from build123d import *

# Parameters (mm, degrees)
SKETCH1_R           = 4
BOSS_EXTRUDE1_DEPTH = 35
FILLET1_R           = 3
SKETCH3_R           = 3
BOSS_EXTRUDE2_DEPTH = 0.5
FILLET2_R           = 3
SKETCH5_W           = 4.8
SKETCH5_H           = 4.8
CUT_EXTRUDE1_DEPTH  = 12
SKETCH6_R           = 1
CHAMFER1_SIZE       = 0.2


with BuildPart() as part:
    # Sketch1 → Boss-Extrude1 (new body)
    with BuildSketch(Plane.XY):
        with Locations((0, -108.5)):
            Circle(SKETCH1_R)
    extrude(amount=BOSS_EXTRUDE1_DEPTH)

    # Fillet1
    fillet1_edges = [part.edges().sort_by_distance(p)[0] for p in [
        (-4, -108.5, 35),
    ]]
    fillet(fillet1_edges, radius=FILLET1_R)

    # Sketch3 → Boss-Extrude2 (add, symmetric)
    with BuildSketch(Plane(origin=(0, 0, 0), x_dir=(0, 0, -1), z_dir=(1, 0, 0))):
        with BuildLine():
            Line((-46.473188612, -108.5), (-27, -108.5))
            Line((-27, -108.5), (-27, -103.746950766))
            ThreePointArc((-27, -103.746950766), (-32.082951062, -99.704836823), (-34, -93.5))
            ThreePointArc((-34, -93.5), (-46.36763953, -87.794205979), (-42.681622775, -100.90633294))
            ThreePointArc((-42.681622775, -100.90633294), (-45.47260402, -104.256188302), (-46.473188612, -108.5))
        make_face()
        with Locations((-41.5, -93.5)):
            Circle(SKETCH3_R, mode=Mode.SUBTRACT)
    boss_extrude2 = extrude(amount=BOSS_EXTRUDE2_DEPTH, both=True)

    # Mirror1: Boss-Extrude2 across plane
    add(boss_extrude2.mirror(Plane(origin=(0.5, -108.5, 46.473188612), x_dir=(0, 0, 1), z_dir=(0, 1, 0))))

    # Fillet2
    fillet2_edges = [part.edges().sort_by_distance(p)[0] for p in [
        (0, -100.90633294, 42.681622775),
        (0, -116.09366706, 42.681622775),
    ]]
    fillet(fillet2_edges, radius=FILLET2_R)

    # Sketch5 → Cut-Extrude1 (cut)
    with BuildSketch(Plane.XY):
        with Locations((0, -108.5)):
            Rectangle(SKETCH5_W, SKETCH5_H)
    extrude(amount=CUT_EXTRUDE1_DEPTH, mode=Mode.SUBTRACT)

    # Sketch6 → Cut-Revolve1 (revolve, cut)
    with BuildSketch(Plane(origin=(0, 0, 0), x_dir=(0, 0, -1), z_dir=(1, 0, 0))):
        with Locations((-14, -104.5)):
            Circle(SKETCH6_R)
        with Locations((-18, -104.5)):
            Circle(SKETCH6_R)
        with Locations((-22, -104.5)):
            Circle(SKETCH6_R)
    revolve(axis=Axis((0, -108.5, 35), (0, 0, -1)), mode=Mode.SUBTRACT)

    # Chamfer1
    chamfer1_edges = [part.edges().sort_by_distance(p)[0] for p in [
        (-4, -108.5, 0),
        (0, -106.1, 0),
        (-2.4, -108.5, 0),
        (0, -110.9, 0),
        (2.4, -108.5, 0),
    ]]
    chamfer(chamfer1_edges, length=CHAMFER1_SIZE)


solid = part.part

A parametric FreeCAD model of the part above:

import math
import FreeCAD as App
import Part
import Sketcher

V = App.Vector
Q = App.Units.Quantity


def edges_at(feature, points):
    """Names of the edges that pass closest to the given points."""
    edges = feature.Shape.Edges
    near = lambda p: min(range(len(edges)), key=lambda i: edges[i].distToShape(Part.Vertex(*p))[0])
    return sorted({f"Edge{near(p) + 1}" for p in points})

doc = App.newDocument("Part")
params = doc.addObject("Spreadsheet::Sheet", "Params")
for row, (alias, value) in enumerate([
    ("sketch1_diameter", "8 mm"),
    ("pad1_length", "35 mm"),
    ("fillet_radius", "3 mm"),
    ("sketch2_diameter", "6 mm"),
    ("sketch2_radius", "11 mm"),
    ("sketch2_radius2", "7.5 mm"),
    ("sketch2_radius3", "9.5 mm"),
    ("pad2_length", "1 mm"),
    ("fillet2_radius", "3 mm"),
    ("sketch3_width", "4.8 mm"),
    ("pocket1_length", "12 mm"),
    ("sketch4_diameter", "2 mm"),
    ("sketch4_height", "8 mm"),
    ("groove_angle", "360 deg"),
    ("chamfer_size", "0.2 mm"),
], start=1):
    params.set(f"A{row}", alias)
    params.set(f"B{row}", "=" + value)
    params.setAlias(f"B{row}", alias)

body = doc.addObject("PartDesign::Body", "Body")

sketch1 = body.newObject("Sketcher::SketchObject", "Sketch")
sketch1.AttachmentSupport = (doc.getObject("XY_Plane"), [""])
sketch1.MapMode = "FlatFace"
sketch1.addGeometry(Part.Circle(V(0, -108.5, 0), V(0, 0, 1), 4), False)
sketch1.addConstraint([
    Sketcher.Constraint("PointOnObject", 0, 3, -2),
    Sketcher.Constraint("Diameter", 0, Q("8 mm")),
    Sketcher.Constraint("DistanceY", 0, 3, -1, 1, Q("108.5 mm")),
])
sketch1.setExpression("Constraints[1]", "Params.sketch1_diameter")
pad1 = body.newObject("PartDesign::Pad", "Pad")
pad1.Profile = sketch1
pad1.setExpression("Length", "Params.pad1_length")
doc.recompute()

fillet = body.newObject("PartDesign::Fillet", "Fillet")
fillet.Base = (pad1, edges_at(pad1, [(-4, -108.5, 35)]))
fillet.setExpression("Radius", "Params.fillet_radius")

sketch2 = body.newObject("Sketcher::SketchObject", "Sketch001")
sketch2.AttachmentSupport = (doc.getObject("YZ_Plane"), [""])
sketch2.MapMode = "FlatFace"
sketch2.addGeometry([
    Part.LineSegment(V(-108.5, 46.5, 0), V(-108.5, 27, 0)),
    Part.LineSegment(V(-108.5, 27, 0), V(-103.7, 27, 0)),
    Part.ArcOfCircle(Part.Circle(V(-93.5, 23, 0), V(0, 0, 1), 11), math.radians(90), math.radians(159)),
    Part.ArcOfCircle(Part.Circle(V(-93.5, 41.5, 0), V(0, 0, 1), 7.5), math.radians(-90), math.radians(171)),
    Part.ArcOfCircle(Part.Circle(V(-108.5, 37, 0), V(0, 0, 1), 9.5), math.radians(37), math.radians(90)),
    Part.Circle(V(-93.5, 41.5, 0), V(0, 0, 1), 3),
], False)
sketch2.addConstraint([
    Sketcher.Constraint("Coincident", 0, 2, 1, 1),
    Sketcher.Constraint("Coincident", 1, 2, 2, 2),
    Sketcher.Constraint("Tangent", 2, 1, 3, 1),
    Sketcher.Constraint("Coincident", 3, 2, 4, 1),
    Sketcher.Constraint("Coincident", 4, 2, 0, 1),
    Sketcher.Constraint("Vertical", 0),
    Sketcher.Constraint("Horizontal", 1),
    Sketcher.Constraint("Coincident", 5, 3, 3, 3),
    Sketcher.Constraint("Vertical", 2, 3, 3, 3),
    Sketcher.Constraint("Vertical", 4, 3, 0, 2),
    Sketcher.Constraint("Diameter", 5, Q("6 mm")),
    Sketcher.Constraint("Radius", 2, Q("11 mm")),
    Sketcher.Constraint("Radius", 3, Q("7.5 mm")),
    Sketcher.Constraint("Radius", 4, Q("9.5 mm")),
    Sketcher.Constraint("DistanceY", -1, 1, 2, 3, Q("23 mm")),
    Sketcher.Constraint("DistanceY", -1, 1, 0, 2, Q("27 mm")),
    Sketcher.Constraint("DistanceX", 4, 3, 3, 3, Q("15 mm")),
    Sketcher.Constraint("DistanceX", 2, 3, -1, 1, Q("93.5 mm")),
    Sketcher.Constraint("DistanceY", 0, 2, 0, 1, Q("19.473189 mm")),
])
sketch2.setExpression("Constraints[10]", "Params.sketch2_diameter")
sketch2.setExpression("Constraints[11]", "Params.sketch2_radius")
sketch2.setExpression("Constraints[12]", "Params.sketch2_radius2")
sketch2.setExpression("Constraints[13]", "Params.sketch2_radius3")
pad2 = body.newObject("PartDesign::Pad", "Pad001")
pad2.Profile = sketch2
pad2.setExpression("Length", "Params.pad2_length")
pad2.Midplane = True
doc.recompute()

datumplane = body.newObject("PartDesign::Plane", "DatumPlane")
datumplane.AttachmentSupport = (doc.getObject("XZ_Plane"), [""])
datumplane.MapMode = "FlatFace"
datumplane.AttachmentOffset = App.Placement(V(0, 0, 108.5), App.Rotation())
mirrored = body.newObject("PartDesign::Mirrored", "Mirrored")
mirrored.Originals = [pad2]
mirrored.MirrorPlane = (datumplane, [""])
body.Tip = mirrored
doc.recompute()

fillet2 = body.newObject("PartDesign::Fillet", "Fillet001")
fillet2.Base = (mirrored, edges_at(mirrored, [(0, -100.906, 42.682), (0, -116.094, 42.682)]))
fillet2.setExpression("Radius", "Params.fillet2_radius")

sketch3 = body.newObject("Sketcher::SketchObject", "Sketch002")
sketch3.AttachmentSupport = (doc.getObject("XY_Plane"), [""])
sketch3.MapMode = "FlatFace"
sketch3.addGeometry([
    Part.LineSegment(V(-2.4, -106.1, 0), V(-2.4, -110.9, 0)),
    Part.LineSegment(V(-2.4, -110.9, 0), V(2.4, -110.9, 0)),
    Part.LineSegment(V(2.4, -110.9, 0), V(2.4, -106.1, 0)),
    Part.LineSegment(V(2.4, -106.1, 0), V(-2.4, -106.1, 0)),
], False)
sketch3.addConstraint([
    Sketcher.Constraint("Coincident", 0, 2, 1, 1),
    Sketcher.Constraint("Coincident", 1, 2, 2, 1),
    Sketcher.Constraint("Coincident", 2, 2, 3, 1),
    Sketcher.Constraint("Coincident", 3, 2, 0, 1),
    Sketcher.Constraint("Vertical", 0),
    Sketcher.Constraint("Horizontal", 1),
    Sketcher.Constraint("Vertical", 2),
    Sketcher.Constraint("Horizontal", 3),
    Sketcher.Constraint("Equal", 3, 0),
    Sketcher.Constraint("DistanceX", 1, 1, 1, 2, Q("4.8 mm")),
    Sketcher.Constraint("DistanceX", 0, 2, -1, 1, Q("2.4 mm")),
    Sketcher.Constraint("DistanceY", 0, 2, -1, 1, Q("110.9 mm")),
])
sketch3.setExpression("Constraints[9]", "Params.sketch3_width")
pocket1 = body.newObject("PartDesign::Pocket", "Pocket")
pocket1.Profile = sketch3
pocket1.setExpression("Length", "Params.pocket1_length")
pocket1.Reversed = True

sketch4 = body.newObject("Sketcher::SketchObject", "Sketch003")
sketch4.AttachmentSupport = (doc.getObject("YZ_Plane"), [""])
sketch4.MapMode = "FlatFace"
sketch4.addGeometry([
    Part.Circle(V(-104.5, 14, 0), V(0, 0, 1), 1),
    Part.Circle(V(-104.5, 18, 0), V(0, 0, 1), 1),
    Part.Circle(V(-104.5, 22, 0), V(0, 0, 1), 1),
], False)
sketch4.addGeometry(Part.LineSegment(V(-108.5, 22, 0), V(-108.5, 14, 0)), True)
sketch4.addConstraint([
    Sketcher.Constraint("Vertical", 3),
    Sketcher.Constraint("Equal", 0, 1),
    Sketcher.Constraint("Equal", 1, 2),
    Sketcher.Constraint("Horizontal", 2, 3, 3, 1),
    Sketcher.Constraint("Horizontal", 0, 3, 3, 2),
    Sketcher.Constraint("Vertical", 0, 3, 1, 3),
    Sketcher.Constraint("Vertical", 1, 3, 2, 3),
    Sketcher.Constraint("Diameter", 0, Q("2 mm")),
    Sketcher.Constraint("DistanceY", 3, 2, 3, 1, Q("8 mm")),
    Sketcher.Constraint("DistanceY", -1, 1, 0, 3, Q("14 mm")),
    Sketcher.Constraint("DistanceY", -1, 1, 1, 3, Q("18 mm")),
    Sketcher.Constraint("DistanceX", 3, 1, 2, 3, Q("4 mm")),
    Sketcher.Constraint("DistanceX", 0, 3, -1, 1, Q("104.5 mm")),
])
sketch4.setExpression("Constraints[7]", "Params.sketch4_diameter")
sketch4.setExpression("Constraints[8]", "Params.sketch4_height")
groove = body.newObject("PartDesign::Groove", "Groove")
groove.Profile = sketch4
groove.ReferenceAxis = (sketch4, ["Axis0"])
groove.setExpression("Angle", "Params.groove_angle")
doc.recompute()

chamfer = body.newObject("PartDesign::Chamfer", "Chamfer")
chamfer.Base = (groove, edges_at(groove, [
    (-4, -108.5, 0),
    (0, -106.1, 0),
    (-2.4, -108.5, 0),
    (0, -110.9, 0),
    (2.4, -108.5, 0),
]))
chamfer.setExpression("Size", "Params.chamfer_size")

doc.recompute()
